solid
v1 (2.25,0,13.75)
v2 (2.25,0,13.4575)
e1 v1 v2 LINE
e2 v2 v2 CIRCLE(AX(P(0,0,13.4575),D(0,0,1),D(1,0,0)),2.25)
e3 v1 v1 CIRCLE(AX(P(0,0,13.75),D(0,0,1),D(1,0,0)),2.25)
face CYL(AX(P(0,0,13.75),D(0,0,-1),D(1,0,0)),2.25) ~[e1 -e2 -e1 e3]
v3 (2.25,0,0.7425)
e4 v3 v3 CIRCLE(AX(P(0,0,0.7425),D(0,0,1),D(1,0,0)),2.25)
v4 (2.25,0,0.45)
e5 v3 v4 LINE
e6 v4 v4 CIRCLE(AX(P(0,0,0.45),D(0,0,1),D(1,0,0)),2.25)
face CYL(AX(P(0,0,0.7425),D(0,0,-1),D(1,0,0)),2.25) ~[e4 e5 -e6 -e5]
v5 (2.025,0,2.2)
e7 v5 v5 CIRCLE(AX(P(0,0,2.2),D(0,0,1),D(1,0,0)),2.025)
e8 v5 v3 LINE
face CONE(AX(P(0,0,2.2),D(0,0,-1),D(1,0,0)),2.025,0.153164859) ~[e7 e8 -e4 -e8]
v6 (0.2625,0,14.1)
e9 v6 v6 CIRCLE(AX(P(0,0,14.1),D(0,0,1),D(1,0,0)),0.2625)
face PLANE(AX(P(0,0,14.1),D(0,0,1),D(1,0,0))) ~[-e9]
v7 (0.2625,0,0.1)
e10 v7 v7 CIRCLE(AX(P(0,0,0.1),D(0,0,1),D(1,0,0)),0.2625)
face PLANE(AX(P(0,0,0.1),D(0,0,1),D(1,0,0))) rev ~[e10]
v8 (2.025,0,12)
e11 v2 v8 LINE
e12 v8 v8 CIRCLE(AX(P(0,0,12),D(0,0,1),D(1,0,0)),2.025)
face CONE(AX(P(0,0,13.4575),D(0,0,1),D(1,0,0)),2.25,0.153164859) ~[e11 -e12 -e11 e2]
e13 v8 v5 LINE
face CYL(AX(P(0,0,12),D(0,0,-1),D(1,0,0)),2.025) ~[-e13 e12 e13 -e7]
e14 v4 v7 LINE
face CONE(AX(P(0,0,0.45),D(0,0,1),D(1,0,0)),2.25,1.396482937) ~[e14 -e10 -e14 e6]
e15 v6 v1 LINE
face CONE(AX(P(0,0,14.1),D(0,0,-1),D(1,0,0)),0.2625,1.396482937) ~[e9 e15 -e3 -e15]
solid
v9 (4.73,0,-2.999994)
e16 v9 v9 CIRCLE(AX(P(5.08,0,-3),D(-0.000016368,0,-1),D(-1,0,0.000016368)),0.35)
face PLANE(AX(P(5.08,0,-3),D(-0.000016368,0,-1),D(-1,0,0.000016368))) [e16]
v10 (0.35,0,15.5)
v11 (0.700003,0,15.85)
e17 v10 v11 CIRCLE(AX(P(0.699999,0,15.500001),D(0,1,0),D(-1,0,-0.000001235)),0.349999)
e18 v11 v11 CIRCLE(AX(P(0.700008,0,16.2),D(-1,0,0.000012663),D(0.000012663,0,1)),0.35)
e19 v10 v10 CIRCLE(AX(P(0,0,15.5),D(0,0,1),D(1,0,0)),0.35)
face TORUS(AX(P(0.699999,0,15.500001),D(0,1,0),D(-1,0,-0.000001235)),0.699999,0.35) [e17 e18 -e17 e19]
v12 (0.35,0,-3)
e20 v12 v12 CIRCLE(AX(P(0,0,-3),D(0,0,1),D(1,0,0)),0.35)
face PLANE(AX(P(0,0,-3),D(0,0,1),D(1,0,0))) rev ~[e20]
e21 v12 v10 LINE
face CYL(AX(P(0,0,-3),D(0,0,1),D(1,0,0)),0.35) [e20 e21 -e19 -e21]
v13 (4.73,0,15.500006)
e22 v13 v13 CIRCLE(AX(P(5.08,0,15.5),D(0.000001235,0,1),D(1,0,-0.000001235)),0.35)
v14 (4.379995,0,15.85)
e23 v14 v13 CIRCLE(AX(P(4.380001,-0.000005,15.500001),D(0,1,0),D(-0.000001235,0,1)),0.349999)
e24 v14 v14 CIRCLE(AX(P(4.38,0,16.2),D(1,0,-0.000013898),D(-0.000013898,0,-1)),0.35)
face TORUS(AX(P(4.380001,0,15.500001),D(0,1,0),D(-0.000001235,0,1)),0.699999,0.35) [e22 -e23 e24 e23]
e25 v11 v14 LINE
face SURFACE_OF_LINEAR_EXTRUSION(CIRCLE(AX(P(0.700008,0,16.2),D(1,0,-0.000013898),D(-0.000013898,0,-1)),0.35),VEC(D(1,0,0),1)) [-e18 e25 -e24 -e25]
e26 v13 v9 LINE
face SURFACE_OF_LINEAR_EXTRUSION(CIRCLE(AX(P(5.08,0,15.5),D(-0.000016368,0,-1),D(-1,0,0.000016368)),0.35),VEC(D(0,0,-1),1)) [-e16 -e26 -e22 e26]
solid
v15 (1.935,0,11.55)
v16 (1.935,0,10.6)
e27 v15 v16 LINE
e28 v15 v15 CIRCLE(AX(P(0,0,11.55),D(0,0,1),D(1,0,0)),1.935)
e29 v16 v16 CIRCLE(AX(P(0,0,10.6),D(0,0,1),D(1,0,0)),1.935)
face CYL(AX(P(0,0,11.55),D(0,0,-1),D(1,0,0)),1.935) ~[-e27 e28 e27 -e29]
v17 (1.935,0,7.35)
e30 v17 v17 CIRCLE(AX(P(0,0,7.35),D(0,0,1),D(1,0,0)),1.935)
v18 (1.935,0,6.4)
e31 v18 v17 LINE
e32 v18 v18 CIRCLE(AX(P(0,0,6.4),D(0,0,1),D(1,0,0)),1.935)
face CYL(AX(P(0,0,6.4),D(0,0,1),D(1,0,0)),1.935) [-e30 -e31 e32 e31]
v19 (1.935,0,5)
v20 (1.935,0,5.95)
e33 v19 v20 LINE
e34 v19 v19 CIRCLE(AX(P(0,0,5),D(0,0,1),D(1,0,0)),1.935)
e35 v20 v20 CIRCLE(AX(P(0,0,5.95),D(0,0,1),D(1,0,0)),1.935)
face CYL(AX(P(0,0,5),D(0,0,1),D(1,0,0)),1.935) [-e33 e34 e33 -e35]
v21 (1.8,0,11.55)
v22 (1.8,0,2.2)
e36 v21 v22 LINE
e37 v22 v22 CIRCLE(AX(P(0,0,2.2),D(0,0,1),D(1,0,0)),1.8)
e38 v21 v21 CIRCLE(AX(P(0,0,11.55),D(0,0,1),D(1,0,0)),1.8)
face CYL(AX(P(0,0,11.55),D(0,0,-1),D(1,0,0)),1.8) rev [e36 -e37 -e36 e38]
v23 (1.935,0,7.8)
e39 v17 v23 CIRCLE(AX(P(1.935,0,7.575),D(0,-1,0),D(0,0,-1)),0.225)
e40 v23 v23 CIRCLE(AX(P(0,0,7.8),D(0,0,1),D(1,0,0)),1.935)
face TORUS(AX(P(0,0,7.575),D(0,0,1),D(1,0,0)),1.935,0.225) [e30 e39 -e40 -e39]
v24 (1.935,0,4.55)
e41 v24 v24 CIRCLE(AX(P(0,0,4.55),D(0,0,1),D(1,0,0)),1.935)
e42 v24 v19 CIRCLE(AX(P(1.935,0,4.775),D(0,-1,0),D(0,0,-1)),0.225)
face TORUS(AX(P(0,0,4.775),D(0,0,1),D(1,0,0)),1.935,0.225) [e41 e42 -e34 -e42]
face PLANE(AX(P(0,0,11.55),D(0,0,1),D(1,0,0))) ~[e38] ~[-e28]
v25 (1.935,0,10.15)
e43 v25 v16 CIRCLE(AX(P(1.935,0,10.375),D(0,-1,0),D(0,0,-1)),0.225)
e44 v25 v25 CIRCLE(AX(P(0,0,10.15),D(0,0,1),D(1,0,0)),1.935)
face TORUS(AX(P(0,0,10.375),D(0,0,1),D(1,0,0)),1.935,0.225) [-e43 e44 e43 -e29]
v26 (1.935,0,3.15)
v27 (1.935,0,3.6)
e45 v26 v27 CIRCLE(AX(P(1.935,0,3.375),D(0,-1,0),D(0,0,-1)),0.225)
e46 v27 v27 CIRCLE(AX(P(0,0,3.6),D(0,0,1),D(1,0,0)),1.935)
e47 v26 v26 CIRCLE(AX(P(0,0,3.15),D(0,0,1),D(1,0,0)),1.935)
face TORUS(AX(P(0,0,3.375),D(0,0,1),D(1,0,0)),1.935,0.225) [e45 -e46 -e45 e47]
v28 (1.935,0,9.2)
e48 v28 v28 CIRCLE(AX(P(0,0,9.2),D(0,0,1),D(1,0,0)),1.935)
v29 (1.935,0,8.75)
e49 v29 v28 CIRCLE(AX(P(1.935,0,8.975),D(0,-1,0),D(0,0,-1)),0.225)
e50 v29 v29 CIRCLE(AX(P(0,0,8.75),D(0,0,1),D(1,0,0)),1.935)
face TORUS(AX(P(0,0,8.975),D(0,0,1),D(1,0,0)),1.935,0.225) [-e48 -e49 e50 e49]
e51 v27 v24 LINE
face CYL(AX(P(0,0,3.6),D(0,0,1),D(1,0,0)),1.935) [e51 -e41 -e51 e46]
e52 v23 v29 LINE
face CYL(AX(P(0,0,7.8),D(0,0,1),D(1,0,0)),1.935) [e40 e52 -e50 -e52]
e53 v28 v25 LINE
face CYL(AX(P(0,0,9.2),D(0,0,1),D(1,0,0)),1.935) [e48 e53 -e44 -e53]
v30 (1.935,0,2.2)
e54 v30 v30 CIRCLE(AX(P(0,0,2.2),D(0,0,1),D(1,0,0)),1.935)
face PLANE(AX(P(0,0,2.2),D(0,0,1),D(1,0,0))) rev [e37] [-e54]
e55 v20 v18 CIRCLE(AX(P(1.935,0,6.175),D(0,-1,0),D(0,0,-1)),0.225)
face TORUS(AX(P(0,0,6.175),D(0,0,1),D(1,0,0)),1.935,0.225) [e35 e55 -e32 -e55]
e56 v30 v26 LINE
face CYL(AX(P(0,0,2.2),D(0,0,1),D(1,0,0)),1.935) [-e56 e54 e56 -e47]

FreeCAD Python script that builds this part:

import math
import FreeCAD as App
import Part
import Sketcher

V = App.Vector

doc = App.newDocument("Part")
params = doc.addObject("Spreadsheet::Sheet", "Params")
for row, (alias, value) in enumerate([
    ("sketch1_diameter", "0.7 mm"),
    ("sketch2_radius", "0.699999 mm"),
    ("sketch2_height", "18.5 mm"),
    ("sketch3_height", "14 mm"),
    ("sketch3_height2", "9.8 mm"),
    ("revolution_angle", "360 deg"),
    ("revolution2_angle", "360 deg"),
], start=1):
    params.set(f"A{row}", alias)
    params.set(f"B{row}", "=" + value)
    params.setAlias(f"B{row}", alias)

body = doc.addObject("PartDesign::Body", "Body")

# Sketch on XY plane
sketch1 = body.newObject("Sketcher::SketchObject", "Sketch")
sketch1.AttachmentSupport = (doc.getObject("XY_Plane"), [""])
sketch1.MapMode = "FlatFace"
sketch1.AttachmentOffset = App.Placement(V(0, 0, -2), App.Rotation())
sketch1.addGeometry(Part.Circle(V(0, 0, 0), V(0, 0, 1), 0.35), False)
sketch1.addConstraint([
    Sketcher.Constraint("Coincident", 0, 3, -1, 1),
    Sketcher.Constraint("Diameter", 0, 0.7),
])
sketch1.setExpression("Constraints[1]", "Params.sketch1_diameter")

# Sketch on XZ plane
sketch2 = body.newObject("Sketcher::SketchObject", "Sketch001")
sketch2.AttachmentSupport = (doc.getObject("XZ_Plane"), [""])
sketch2.MapMode = "FlatFace"
sketch2.addGeometry([
    Part.LineSegment(V(0, -3, 0), V(0, 15.5, 0)),  # 0
    Part.ArcOfCircle(Part.Circle(V(0.699999, 15.500001, 0), V(0, 0, 1), 0.699999), math.radians(89.999274), math.radians(180.000071)),  # 1
    Part.LineSegment(V(0.700008, 16.2, 0), V(4.38, 16.2, 0)),  # 2
    Part.ArcOfCircle(Part.Circle(V(4.380001, 15.500001, 0), V(0, 0, 1), 0.699999), math.radians(-0.000071), math.radians(90.000071)),  # 3
    Part.LineSegment(V(5.08, 15.5, 0), V(5.08, -3, 0)),  # 4
], False)
sketch2.addConstraint([
    Sketcher.Constraint("Tangent", 0, 2, 1, 2),
    Sketcher.Constraint("Coincident", 1, 1, 2, 1),
    Sketcher.Constraint("Tangent", 2, 2, 3, 2),
    Sketcher.Constraint("Tangent", 3, 1, 4, 1),
    Sketcher.Constraint("Vertical", 0),
    Sketcher.Constraint("Horizontal", 2),
    Sketcher.Constraint("Vertical", 4),
    Sketcher.Constraint("Equal", 1, 3),
    Sketcher.Constraint("PointOnObject", 0, 1, -2),
    Sketcher.Constraint("Horizontal", 0, 1, 4, 2),
    Sketcher.Constraint("Radius", 1, 0.699999),
    Sketcher.Constraint("DistanceY", 0, 1, 0, 2, 18.5),
    Sketcher.Constraint("DistanceY", 0, 1, -1, 1, 3.0),
    Sketcher.Constraint("DistanceX", -1, 1, 3, 3, 4.380001),
    Sketcher.Constraint("DistanceX", 2, 1, 2, 2, 3.679992),
])
sketch2.setExpression("Constraints[10]", "Params.sketch2_radius")
sketch2.setExpression("Constraints[11]", "Params.sketch2_height")
doc.recompute()

additivepipe = body.newObject("PartDesign::AdditivePipe", "AdditivePipe")
additivepipe.Profile = sketch1
additivepipe.Spine = (sketch2, ["Edge1", "Edge2", "Edge3", "Edge4", "Edge5"])
body2 = doc.addObject("PartDesign::Body", "Body001")

# Sketch on XZ plane
sketch3 = body2.newObject("Sketcher::SketchObject", "Sketch002")
sketch3.AttachmentSupport = (doc.getObject("XZ_Plane001"), [""])
sketch3.MapMode = "FlatFace"
sketch3.addGeometry([
    Part.LineSegment(V(0, 14.1, 0), V(0, 0.1, 0)),  # 0
    Part.LineSegment(V(0, 0.1, 0), V(0.2625, 0.1, 0)),  # 1
    Part.LineSegment(V(0.2625, 0.1, 0), V(2.25, 0.45, 0)),  # 2
    Part.LineSegment(V(2.25, 0.45, 0), V(2.25, 0.7425, 0)),  # 3
    Part.LineSegment(V(2.25, 0.7425, 0), V(2.025, 2.2, 0)),  # 4
    Part.LineSegment(V(2.025, 2.2, 0), V(2.025, 12, 0)),  # 5
    Part.LineSegment(V(2.025, 12, 0), V(2.25, 13.4575, 0)),  # 6
    Part.LineSegment(V(2.25, 13.4575, 0), V(2.25, 13.75, 0)),  # 7
    Part.LineSegment(V(2.25, 13.75, 0), V(0.2625, 14.1, 0)),  # 8
    Part.LineSegment(V(0.2625, 14.1, 0), V(0, 14.1, 0)),  # 9
], False)
sketch3.addConstraint([
    Sketcher.Constraint("Coincident", 0, 2, 1, 1),
    Sketcher.Constraint("Coincident", 1, 2, 2, 1),
    Sketcher.Constraint("Coincident", 2, 2, 3, 1),
    Sketcher.Constraint("Coincident", 3, 2, 4, 1),
    Sketcher.Constraint("Coincident", 4, 2, 5, 1),
    Sketcher.Constraint("Coincident", 5, 2, 6, 1),
    Sketcher.Constraint("Coincident", 6, 2, 7, 1),
    Sketcher.Constraint("Coincident", 7, 2, 8, 1),
    Sketcher.Constraint("Coincident", 8, 2, 9, 1),
    Sketcher.Constraint("Coincident", 9, 2, 0, 1),
    Sketcher.Constraint("Vertical", 0),
    Sketcher.Constraint("Horizontal", 1),
    Sketcher.Constraint("Vertical", 3),
    Sketcher.Constraint("Vertical", 5),
    Sketcher.Constraint("Vertical", 7),
    Sketcher.Constraint("Horizontal", 9),
    Sketcher.Constraint("PointOnObject", 0, 2, -2),
    Sketcher.Constraint("Vertical", 3, 2, 6, 2),
    Sketcher.Constraint("Vertical", 1, 2, 8, 2),
    Sketcher.Constraint("Equal", 3, 7),
    Sketcher.Constraint("Equal", 4, 6),
    Sketcher.Constraint("Equal", 2, 8),
    Sketcher.Constraint("DistanceY", 0, 2, 0, 1, 14.0),
    Sketcher.Constraint("DistanceY", 5, 1, 5, 2, 9.8),
    Sketcher.Constraint("DistanceY", -1, 1, 5, 2, 12.0),
    Sketcher.Constraint("DistanceY", 2, 2, 7, 2, 13.3),
    Sketcher.Constraint("DistanceX", -1, 1, 2, 2, 2.25),
    Sketcher.Constraint("DistanceX", 1, 1, 1, 2, 0.2625),
    Sketcher.Constraint("DistanceY", 3, 1, 3, 2, 0.2925),
    Sketcher.Constraint("DistanceX", -1, 1, 4, 2, 2.025),
])
sketch3.setExpression("Constraints[22]", "Params.sketch3_height")
sketch3.setExpression("Constraints[23]", "Params.sketch3_height2")
revolution = body2.newObject("PartDesign::Revolution", "Revolution")
revolution.Profile = sketch3
revolution.ReferenceAxis = (sketch3, ["V_Axis"])
revolution.setExpression("Angle", "Params.revolution_angle")
body3 = doc.addObject("PartDesign::Body", "Body002")

# Sketch on XZ plane
sketch4 = body3.newObject("Sketcher::SketchObject", "Sketch003")
sketch4.AttachmentSupport = (doc.getObject("XZ_Plane002"), [""])
sketch4.MapMode = "FlatFace"
sketch4.addGeometry([
    Part.LineSegment(V(1.8, 11.55, 0), V(1.8, 2.2, 0)),  # 0
    Part.LineSegment(V(1.8, 2.2, 0), V(1.935, 2.2, 0)),  # 1
    Part.LineSegment(V(1.935, 2.2, 0), V(1.935, 3.15, 0)),  # 2
    Part.ArcOfCircle(Part.Circle(V(1.935, 3.375, 0), V(0, 0, 1), 0.225), math.radians(-90), math.radians(90)),  # 3
    Part.LineSegment(V(1.935, 3.6, 0), V(1.935, 4.55, 0)),  # 4
    Part.ArcOfCircle(Part.Circle(V(1.935, 4.775, 0), V(0, 0, 1), 0.225), math.radians(-90), math.radians(90)),  # 5
    Part.LineSegment(V(1.935, 5, 0), V(1.935, 5.95, 0)),  # 6
    Part.ArcOfCircle(Part.Circle(V(1.935, 6.175, 0), V(0, 0, 1), 0.225), math.radians(-90), math.radians(90)),  # 7
    Part.LineSegment(V(1.935, 6.4, 0), V(1.935, 7.35, 0)),  # 8
    Part.ArcOfCircle(Part.Circle(V(1.935, 7.575, 0), V(0, 0, 1), 0.225), math.radians(-90), math.radians(90)),  # 9
    Part.LineSegment(V(1.935, 7.8, 0), V(1.935, 8.75, 0)),  # 10
    Part.ArcOfCircle(Part.Circle(V(1.935, 8.975, 0), V(0, 0, 1), 0.225), math.radians(-90), math.radians(90)),  # 11
    Part.LineSegment(V(1.935, 9.2, 0), V(1.935, 10.15, 0)),  # 12
    Part.ArcOfCircle(Part.Circle(V(1.935, 10.375, 0), V(0, 0, 1), 0.225), math.radians(-90), math.radians(90)),  # 13
    Part.LineSegment(V(1.935, 10.6, 0), V(1.935, 11.55, 0)),  # 14
    Part.LineSegment(V(1.935, 11.55, 0), V(1.8, 11.55, 0)),  # 15
], False)
sketch4.addConstraint([
    Sketcher.Constraint("Coincident", 0, 2, 1, 1),
    Sketcher.Constraint("Coincident", 1, 2, 2, 1),
    Sketcher.Constraint("Coincident", 2, 2, 3, 1),
    Sketcher.Constraint("Coincident", 3, 2, 4, 1),
    Sketcher.Constraint("Coincident", 4, 2, 5, 1),
    Sketcher.Constraint("Coincident", 5, 2, 6, 1),
    Sketcher.Constraint("Coincident", 6, 2, 7, 1),
    Sketcher.Constraint("Coincident", 7, 2, 8, 1),
    Sketcher.Constraint("Coincident", 8, 2, 9, 1),
    Sketcher.Constraint("Coincident", 9, 2, 10, 1),
    Sketcher.Constraint("Coincident", 10, 2, 11, 1),
    Sketcher.Constraint("Coincident", 11, 2, 12, 1),
    Sketcher.Constraint("Coincident", 12, 2, 13, 1),
    Sketcher.Constraint("Coincident", 13, 2, 14, 1),
    Sketcher.Constraint("Coincident", 14, 2, 15, 1),
    Sketcher.Constraint("Coincident", 15, 2, 0, 1),
    Sketcher.Constraint("Vertical", 0),
    Sketcher.Constraint("Horizontal", 1),
    Sketcher.Constraint("Vertical", 2),
    Sketcher.Constraint("Vertical", 4),
    Sketcher.Constraint("Vertical", 6),
    Sketcher.Constraint("Vertical", 8),
    Sketcher.Constraint("Vertical", 10),
    Sketcher.Constraint("Vertical", 12),
    Sketcher.Constraint("Vertical", 14),
    Sketcher.Constraint("Horizontal", 15),
    Sketcher.Constraint("Equal", 3, 5),
    Sketcher.Constraint("Equal", 5, 7),
    Sketcher.Constraint("Equal", 7, 9),
    Sketcher.Constraint("Equal", 9, 11),
    Sketcher.Constraint("Equal", 11, 13),
    Sketcher.Constraint("Vertical", 3, 3, 5, 3),
    Sketcher.Constraint("Vertical", 5, 3, 7, 3),
    Sketcher.Constraint("Vertical", 7, 3, 9, 3),
    Sketcher.Constraint("Vertical", 9, 3, 11, 3),
    Sketcher.Constraint("Vertical", 11, 3, 13, 3),
    Sketcher.Constraint("Vertical", 13, 3, 1, 2),
    Sketcher.Constraint("Vertical", 2, 2, 3, 2),
    Sketcher.Constraint("Vertical", 4, 2, 5, 2),
    Sketcher.Constraint("Vertical", 6, 2, 7, 2),
    Sketcher.Constraint("Vertical", 8, 2, 9, 2),
    Sketcher.Constraint("Vertical", 10, 2, 11, 2),
    Sketcher.Constraint("Vertical", 12, 2, 13, 2),
    Sketcher.Constraint("Equal", 2, 4),
    Sketcher.Constraint("Equal", 4, 6),
    Sketcher.Constraint("Equal", 6, 8),
    Sketcher.Constraint("Equal", 8, 10),
    Sketcher.Constraint("Equal", 10, 12),
    Sketcher.Constraint("Equal", 12, 14),
    Sketcher.Constraint("DistanceY", -1, 1, 5, 2, 5.0),
    Sketcher.Constraint("Radius", 3, 0.225),
    Sketcher.Constraint("DistanceY", 3, 3, 13, 3, 7.0),
    Sketcher.Constraint("DistanceX", -1, 1, 0, 2, 1.8),
    Sketcher.Constraint("DistanceX", 1, 1, 1, 2, 0.135),
])
revolution2 = body3.newObject("PartDesign::Revolution", "Revolution001")
revolution2.Profile = sketch4
revolution2.ReferenceAxis = (sketch4, ["V_Axis"])
revolution2.setExpression("Angle", "Params.revolution2_angle")

doc.recompute()
